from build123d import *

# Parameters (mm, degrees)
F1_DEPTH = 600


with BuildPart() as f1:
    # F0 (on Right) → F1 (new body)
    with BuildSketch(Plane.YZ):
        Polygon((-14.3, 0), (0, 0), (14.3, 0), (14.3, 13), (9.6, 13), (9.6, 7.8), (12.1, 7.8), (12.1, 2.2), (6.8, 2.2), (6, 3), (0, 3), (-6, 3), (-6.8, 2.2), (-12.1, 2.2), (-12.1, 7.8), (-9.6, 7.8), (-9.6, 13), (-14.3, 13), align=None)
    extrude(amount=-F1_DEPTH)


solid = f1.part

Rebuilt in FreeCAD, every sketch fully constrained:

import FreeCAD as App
import Part
import Sketcher

doc = App.newDocument("Part")
body = doc.addObject("PartDesign::Body", "Body")

# Sketch on YZ plane
sketch1 = doc.addObject("Sketcher::SketchObject", "Sketch")
body.addObject(sketch1)
sketch1.AttachmentSupport = (doc.YZ_Plane, [""])
sketch1.MapMode = "FlatFace"
sketch1.addGeometry([
    Part.LineSegment(App.Vector(-14.3, 0, 0), App.Vector(14.3, 0, 0)),  # 0
    Part.LineSegment(App.Vector(14.3, 0, 0), App.Vector(14.3, 13, 0)),  # 1
    Part.LineSegment(App.Vector(14.3, 13, 0), App.Vector(9.6, 13, 0)),  # 2
    Part.LineSegment(App.Vector(9.6, 13, 0), App.Vector(9.6, 7.8, 0)),  # 3
    Part.LineSegment(App.Vector(9.6, 7.8, 0), App.Vector(12.1, 7.8, 0)),  # 4
    Part.LineSegment(App.Vector(12.1, 7.8, 0), App.Vector(12.1, 2.2, 0)),  # 5
    Part.LineSegment(App.Vector(12.1, 2.2, 0), App.Vector(6.8, 2.2, 0)),  # 6
    Part.LineSegment(App.Vector(6.8, 2.2, 0), App.Vector(6, 3, 0)),  # 7
    Part.LineSegment(App.Vector(6, 3, 0), App.Vector(-6, 3, 0)),  # 8
    Part.LineSegment(App.Vector(-6, 3, 0), App.Vector(-6.8, 2.2, 0)),  # 9
    Part.LineSegment(App.Vector(-6.8, 2.2, 0), App.Vector(-12.1, 2.2, 0)),  # 10
    Part.LineSegment(App.Vector(-12.1, 2.2, 0), App.Vector(-12.1, 7.8, 0)),  # 11
    Part.LineSegment(App.Vector(-12.1, 7.8, 0), App.Vector(-9.6, 7.8, 0)),  # 12
    Part.LineSegment(App.Vector(-9.6, 7.8, 0), App.Vector(-9.6, 13, 0)),  # 13
    Part.LineSegment(App.Vector(-9.6, 13, 0), App.Vector(-14.3, 13, 0)),  # 14
    Part.LineSegment(App.Vector(-14.3, 13, 0), App.Vector(-14.3, 0, 0)),  # 15
], False)
sketch1.addConstraint([
    Sketcher.Constraint("Coincident", 0, 2, 1, 1),
    Sketcher.Constraint("Coincident", 1, 2, 2, 1),
    Sketcher.Constraint("Coincident", 2, 2, 3, 1),
    Sketcher.Constraint("Coincident", 3, 2, 4, 1),
    Sketcher.Constraint("Coincident", 4, 2, 5, 1),
    Sketcher.Constraint("Coincident", 5, 2, 6, 1),
    Sketcher.Constraint("Coincident", 6, 2, 7, 1),
    Sketcher.Constraint("Coincident", 7, 2, 8, 1),
    Sketcher.Constraint("Coincident", 8, 2, 9, 1),
    Sketcher.Constraint("Coincident", 9, 2, 10, 1),
    Sketcher.Constraint("Coincident", 10, 2, 11, 1),
    Sketcher.Constraint("Coincident", 11, 2, 12, 1),
    Sketcher.Constraint("Coincident", 12, 2, 13, 1),
    Sketcher.Constraint("Coincident", 13, 2, 14, 1),
    Sketcher.Constraint("Coincident", 14, 2, 15, 1),
    Sketcher.Constraint("Coincident", 15, 2, 0, 1),
    Sketcher.Constraint("Horizontal", 0),
    Sketcher.Constraint("Vertical", 1),
    Sketcher.Constraint("Horizontal", 2),
    Sketcher.Constraint("Vertical", 3),
    Sketcher.Constraint("Horizontal", 4),
    Sketcher.Constraint("Vertical", 5),
    Sketcher.Constraint("Horizontal", 6),
    Sketcher.Constraint("Horizontal", 8),
    Sketcher.Constraint("Horizontal", 10),
    Sketcher.Constraint("Vertical", 11),
    Sketcher.Constraint("Horizontal", 12),
    Sketcher.Constraint("Vertical", 13),
    Sketcher.Constraint("Horizontal", 14),
    Sketcher.Constraint("Vertical", 15),
    Sketcher.Constraint("Symmetric", 0, 2, 15, 2, -1, 1),
    Sketcher.Constraint("Symmetric", 6, 2, 9, 2, -2),
    Sketcher.Constraint("Symmetric", 4, 2, 11, 2, -2),
    Sketcher.Constraint("Symmetric", 2, 2, 13, 2, -2),
    Sketcher.Constraint("Perpendicular", 7, 9),
    Sketcher.Constraint("Equal", 7, 9),
    Sketcher.Constraint("DistanceX", 8, 2, 8, 1, 12.0),
    Sketcher.Constraint("DistanceY", 1, 1, 1, 2, 13.0),
    Sketcher.Constraint("DistanceX", 0, 1, 0, 2, 28.6),
    Sketcher.Constraint("DistanceX", 2, 2, 2, 1, 4.7),
    Sketcher.Constraint("DistanceX", 4, 1, 4, 2, 2.5),
    Sketcher.Constraint("DistanceX", 6, 2, 6, 1, 5.3),
    Sketcher.Constraint("DistanceY", 3, 2, 3, 1, 5.2),
    Sketcher.Constraint("DistanceY", 5, 2, 5, 1, 5.6),
])
pad1 = doc.addObject("PartDesign::Pad", "Pad")
body.addObject(pad1)
pad1.Profile = sketch1
pad1.Length = 600
pad1.Reversed = True

doc.recompute()
